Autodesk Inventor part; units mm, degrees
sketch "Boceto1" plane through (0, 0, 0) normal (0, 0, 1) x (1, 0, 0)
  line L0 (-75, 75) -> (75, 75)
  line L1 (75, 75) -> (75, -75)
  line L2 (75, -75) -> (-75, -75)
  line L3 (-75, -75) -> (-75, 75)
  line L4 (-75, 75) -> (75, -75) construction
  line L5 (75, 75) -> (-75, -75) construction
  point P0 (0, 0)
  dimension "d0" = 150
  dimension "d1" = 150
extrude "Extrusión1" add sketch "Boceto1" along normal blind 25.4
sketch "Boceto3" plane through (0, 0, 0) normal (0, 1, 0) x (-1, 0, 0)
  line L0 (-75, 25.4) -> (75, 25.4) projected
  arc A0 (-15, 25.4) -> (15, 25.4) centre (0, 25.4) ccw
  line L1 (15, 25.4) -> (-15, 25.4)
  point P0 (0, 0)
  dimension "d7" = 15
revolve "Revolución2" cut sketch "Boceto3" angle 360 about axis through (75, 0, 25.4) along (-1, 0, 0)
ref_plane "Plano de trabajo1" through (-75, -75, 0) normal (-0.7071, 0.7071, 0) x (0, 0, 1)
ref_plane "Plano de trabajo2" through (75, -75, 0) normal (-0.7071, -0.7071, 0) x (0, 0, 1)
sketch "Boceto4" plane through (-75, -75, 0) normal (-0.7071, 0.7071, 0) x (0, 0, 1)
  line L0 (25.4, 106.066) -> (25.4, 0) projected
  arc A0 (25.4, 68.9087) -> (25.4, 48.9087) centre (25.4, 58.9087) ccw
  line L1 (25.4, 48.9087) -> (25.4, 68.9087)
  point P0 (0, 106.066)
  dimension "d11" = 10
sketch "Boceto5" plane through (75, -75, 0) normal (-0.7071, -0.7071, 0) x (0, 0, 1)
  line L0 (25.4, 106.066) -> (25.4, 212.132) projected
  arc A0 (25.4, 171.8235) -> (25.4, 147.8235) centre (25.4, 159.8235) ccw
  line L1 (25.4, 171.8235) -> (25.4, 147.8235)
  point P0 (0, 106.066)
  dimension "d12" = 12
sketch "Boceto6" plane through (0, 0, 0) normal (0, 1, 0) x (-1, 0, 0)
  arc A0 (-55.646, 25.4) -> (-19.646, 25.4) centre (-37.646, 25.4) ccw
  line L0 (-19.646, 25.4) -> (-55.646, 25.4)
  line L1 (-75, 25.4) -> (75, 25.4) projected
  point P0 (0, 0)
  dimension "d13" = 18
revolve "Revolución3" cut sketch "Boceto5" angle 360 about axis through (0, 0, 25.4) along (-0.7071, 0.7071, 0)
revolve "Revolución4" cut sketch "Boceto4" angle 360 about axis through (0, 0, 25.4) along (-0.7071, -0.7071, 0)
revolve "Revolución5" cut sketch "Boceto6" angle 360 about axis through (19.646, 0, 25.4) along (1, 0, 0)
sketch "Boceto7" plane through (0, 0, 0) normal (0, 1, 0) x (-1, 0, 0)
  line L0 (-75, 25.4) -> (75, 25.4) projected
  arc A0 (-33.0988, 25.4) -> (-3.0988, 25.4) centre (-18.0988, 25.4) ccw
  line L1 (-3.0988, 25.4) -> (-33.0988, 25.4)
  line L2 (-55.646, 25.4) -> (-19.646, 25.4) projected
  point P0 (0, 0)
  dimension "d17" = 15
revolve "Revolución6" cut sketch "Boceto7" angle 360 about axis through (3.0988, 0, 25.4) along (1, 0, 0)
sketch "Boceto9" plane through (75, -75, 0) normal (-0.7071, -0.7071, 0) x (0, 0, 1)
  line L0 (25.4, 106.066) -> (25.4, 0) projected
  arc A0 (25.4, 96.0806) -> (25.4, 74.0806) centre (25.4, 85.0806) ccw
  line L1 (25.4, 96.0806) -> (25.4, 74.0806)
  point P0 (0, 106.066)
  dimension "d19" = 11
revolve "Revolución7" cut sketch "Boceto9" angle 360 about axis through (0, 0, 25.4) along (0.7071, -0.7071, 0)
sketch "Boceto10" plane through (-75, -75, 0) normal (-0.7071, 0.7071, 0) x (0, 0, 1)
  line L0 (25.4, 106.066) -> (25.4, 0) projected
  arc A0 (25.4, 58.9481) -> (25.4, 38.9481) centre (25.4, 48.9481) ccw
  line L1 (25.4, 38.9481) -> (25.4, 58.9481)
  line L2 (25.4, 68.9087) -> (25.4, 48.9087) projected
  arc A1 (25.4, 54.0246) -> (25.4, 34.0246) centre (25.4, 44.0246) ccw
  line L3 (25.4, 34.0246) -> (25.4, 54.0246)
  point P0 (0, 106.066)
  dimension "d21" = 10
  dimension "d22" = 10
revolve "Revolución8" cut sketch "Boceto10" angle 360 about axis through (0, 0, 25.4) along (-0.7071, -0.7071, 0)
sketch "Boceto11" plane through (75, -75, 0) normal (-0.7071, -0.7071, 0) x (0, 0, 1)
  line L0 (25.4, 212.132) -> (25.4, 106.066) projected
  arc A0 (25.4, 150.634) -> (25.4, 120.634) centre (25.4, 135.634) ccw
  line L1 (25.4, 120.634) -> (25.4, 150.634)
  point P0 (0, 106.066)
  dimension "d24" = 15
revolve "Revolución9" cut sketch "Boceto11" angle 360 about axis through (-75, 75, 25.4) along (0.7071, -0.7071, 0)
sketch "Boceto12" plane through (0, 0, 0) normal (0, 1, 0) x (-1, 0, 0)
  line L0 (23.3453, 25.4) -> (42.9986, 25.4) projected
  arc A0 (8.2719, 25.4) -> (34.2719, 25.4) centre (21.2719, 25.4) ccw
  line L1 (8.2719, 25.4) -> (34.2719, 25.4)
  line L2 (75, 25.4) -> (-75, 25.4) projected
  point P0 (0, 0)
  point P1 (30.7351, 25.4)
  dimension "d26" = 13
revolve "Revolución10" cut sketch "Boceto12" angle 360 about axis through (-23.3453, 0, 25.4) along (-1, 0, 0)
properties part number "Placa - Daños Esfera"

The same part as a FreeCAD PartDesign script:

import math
import FreeCAD as App
import Part
import Sketcher

V = App.Vector
Q = App.Units.Quantity


def add_polygon(sketch, points):
    """Adds a closed chain of lines whose ends are joined by coincident constraints."""
    first, n = sketch.GeometryCount, len(points)
    for a, b in zip(points, points[1:] + points[:1]):
        sketch.addGeometry(Part.LineSegment(App.Vector(*a, 0), App.Vector(*b, 0)), False)
    for i in range(n):
        sketch.addConstraint(Sketcher.Constraint("Coincident", first + i, 2, first + (i + 1) % n, 1))

doc = App.newDocument("Part")
params = doc.addObject("Spreadsheet::Sheet", "Params")
for row, (alias, value) in enumerate([
    ("sketch1_width", "150 mm"),
    ("pad1_length", "25.4 mm"),
    ("sketch2_radius", "15 mm"),
    ("groove_angle", "360 deg"),
    ("sketch3_radius", "12 mm"),
    ("groove2_angle", "360 deg"),
    ("sketch4_radius", "10 mm"),
    ("groove3_angle", "360 deg"),
    ("sketch5_radius", "18 mm"),
    ("groove4_angle", "360 deg"),
    ("sketch6_radius", "15 mm"),
    ("groove5_angle", "360 deg"),
    ("sketch7_radius", "11 mm"),
    ("groove6_angle", "360 deg"),
    ("sketch8_radius", "10 mm"),
    ("groove7_angle", "360 deg"),
    ("sketch9_radius", "15 mm"),
    ("groove8_angle", "360 deg"),
    ("sketch10_radius", "13 mm"),
    ("groove9_angle", "360 deg"),
], start=1):
    params.set(f"A{row}", alias)
    params.set(f"B{row}", "=" + value)
    params.setAlias(f"B{row}", alias)

body = doc.addObject("PartDesign::Body", "Body")

# Sketch on XY plane
sketch1 = body.newObject("Sketcher::SketchObject", "Sketch")
sketch1.AttachmentSupport = (doc.getObject("XY_Plane"), [""])
sketch1.MapMode = "FlatFace"
add_polygon(sketch1, [(75, 75), (-75, 75), (-75, -75), (75, -75)])  # lines 0-3
sketch1.addConstraint([
    Sketcher.Constraint("Horizontal", 0),
    Sketcher.Constraint("Vertical", 1),
    Sketcher.Constraint("Horizontal", 2),
    Sketcher.Constraint("Vertical", 3),
    Sketcher.Constraint("Symmetric", 0, 2, 2, 2, -1, 1),
    Sketcher.Constraint("Equal", 2, 1),
    Sketcher.Constraint("DistanceX", 0, 2, 0, 1, Q("150 mm")),
])
sketch1.setExpression("Constraints[10]", "Params.sketch1_width")
pad1 = body.newObject("PartDesign::Pad", "Pad")
pad1.Profile = sketch1
pad1.setExpression("Length", "Params.pad1_length")

# Sketch on XZ plane
sketch2 = body.newObject("Sketcher::SketchObject", "Sketch001")
sketch2.AttachmentSupport = (doc.getObject("XZ_Plane"), [""])
sketch2.MapMode = "FlatFace"
sketch2.addGeometry([
    Part.LineSegment(V(-15, 25, 0), V(15, 25, 0)),
    Part.ArcOfCircle(Part.Circle(V(0, 25, 0), V(0, 0, 1), 15), math.radians(180), math.radians(360)),
], False)
sketch2.addGeometry(Part.LineSegment(V(15, 25, 0), V(-15, 25, 0)), True)  # axis
sketch2.addConstraint([
    Sketcher.Constraint("Coincident", 0, 1, 1, 1),
    Sketcher.Constraint("Coincident", 1, 2, 0, 2),
    Sketcher.Constraint("Horizontal", 0),
    Sketcher.Constraint("Horizontal", 2),
    Sketcher.Constraint("Coincident", 2, 1, 1, 2),
    Sketcher.Constraint("PointOnObject", 1, 3, -2),
    Sketcher.Constraint("Horizontal", 1, 3, 0, 1),
    Sketcher.Constraint("Equal", 0, 2),
    Sketcher.Constraint("Radius", 1, Q("15 mm")),
    Sketcher.Constraint("DistanceY", -1, 1, 1, 3, Q("25.4 mm")),
])
sketch2.setExpression("Constraints[8]", "Params.sketch2_radius")
groove = body.newObject("PartDesign::Groove", "Groove")
groove.Profile = sketch2
groove.ReferenceAxis = (sketch2, ["Axis0"])
groove.setExpression("Angle", "Params.groove_angle")

# Sketch on an angled plane
sketch3 = body.newObject("Sketcher::SketchObject", "Sketch002")
sketch3.Placement = App.Placement(V(75, -75, 0), App.Rotation(V(0, 0, 1), V(-0.707106781, 0.707106781, 0), V(-0.707106781, -0.707106781, 0), "ZXY"))
sketch3.addGeometry([
    Part.ArcOfCircle(Part.Circle(V(25, 160, 0), V(0, 0, 1), 12), math.radians(90), math.radians(270)),
    Part.LineSegment(V(25, 148, 0), V(25, 172, 0)),
], False)
sketch3.addGeometry(Part.LineSegment(V(25, 148, 0), V(25, 172, 0)), True)  # axis
sketch3.addConstraint([
    Sketcher.Constraint("Coincident", 0, 1, 1, 2),
    Sketcher.Constraint("Coincident", 1, 1, 0, 2),
    Sketcher.Constraint("Vertical", 1),
    Sketcher.Constraint("Vertical", 2),
    Sketcher.Constraint("Coincident", 2, 1, 1, 1),
    Sketcher.Constraint("Equal", 1, 2),
    Sketcher.Constraint("Radius", 0, Q("12 mm")),
    Sketcher.Constraint("DistanceX", -1, 1, 0, 3, Q("25.4 mm")),
    Sketcher.Constraint("DistanceX", -1, 1, 0, 1, Q("25.4 mm")),
    Sketcher.Constraint("DistanceY", -1, 1, 0, 3, Q("159.8235 mm")),
])
sketch3.setExpression("Constraints[6]", "Params.sketch3_radius")
groove2 = body.newObject("PartDesign::Groove", "Groove001")
groove2.Profile = sketch3
groove2.ReferenceAxis = (sketch3, ["Axis0"])
groove2.setExpression("Angle", "Params.groove2_angle")

# Sketch on an angled plane
sketch4 = body.newObject("Sketcher::SketchObject", "Sketch003")
sketch4.Placement = App.Placement(V(-75, -75, 0), App.Rotation(V(0, 0, 1), V(0.707106781, 0.707106781, 0), V(-0.707106781, 0.707106781, 0), "ZXY"))
sketch4.addGeometry([
    Part.LineSegment(V(25, 49, 0), V(25, 69, 0)),
    Part.ArcOfCircle(Part.Circle(V(25, 59, 0), V(0, 0, 1), 10), math.radians(90), math.radians(270)),
], False)
sketch4.addGeometry(Part.LineSegment(V(25, 69, 0), V(25, 49, 0)), True)  # axis
sketch4.addConstraint([
    Sketcher.Constraint("Coincident", 0, 1, 1, 2),
    Sketcher.Constraint("Coincident", 1, 1, 0, 2),
    Sketcher.Constraint("Vertical", 0),
    Sketcher.Constraint("Vertical", 2),
    Sketcher.Constraint("Coincident", 2, 1, 1, 1),
    Sketcher.Constraint("Vertical", 1, 3, 0, 1),
    Sketcher.Constraint("Equal", 0, 2),
    Sketcher.Constraint("Radius", 1, Q("10 mm")),
    Sketcher.Constraint("DistanceX", -1, 1, 1, 3, Q("25.4 mm")),
    Sketcher.Constraint("DistanceY", -1, 1, 1, 3, Q("58.9087 mm")),
])
sketch4.setExpression("Constraints[7]", "Params.sketch4_radius")
groove3 = body.newObject("PartDesign::Groove", "Groove002")
groove3.Profile = sketch4
groove3.ReferenceAxis = (sketch4, ["Axis0"])
groove3.setExpression("Angle", "Params.groove3_angle")

# Sketch on XZ plane
sketch5 = body.newObject("Sketcher::SketchObject", "Sketch004")
sketch5.AttachmentSupport = (doc.getObject("XZ_Plane"), [""])
sketch5.MapMode = "FlatFace"
sketch5.addGeometry([
    Part.LineSegment(V(20, 25, 0), V(56, 25, 0)),
    Part.ArcOfCircle(Part.Circle(V(38, 25, 0), V(0, 0, 1), 18), math.radians(180), math.radians(360)),
], False)
sketch5.addGeometry(Part.LineSegment(V(20, 25, 0), V(56, 25, 0)), True)  # axis
sketch5.addConstraint([
    Sketcher.Constraint("Coincident", 0, 1, 1, 1),
    Sketcher.Constraint("Coincident", 1, 2, 0, 2),
    Sketcher.Constraint("Horizontal", 0),
    Sketcher.Constraint("Horizontal", 2),
    Sketcher.Constraint("Coincident", 2, 1, 0, 1),
    Sketcher.Constraint("Horizontal", 1, 3, 0, 1),
    Sketcher.Constraint("Equal", 0, 2),
    Sketcher.Constraint("Radius", 1, Q("18 mm")),
    Sketcher.Constraint("DistanceY", -1, 1, 1, 3, Q("25.4 mm")),
    Sketcher.Constraint("DistanceX", -1, 1, 1, 3, Q("37.646 mm")),
])
sketch5.setExpression("Constraints[7]", "Params.sketch5_radius")
groove4 = body.newObject("PartDesign::Groove", "Groove003")
groove4.Profile = sketch5
groove4.ReferenceAxis = (sketch5, ["Axis0"])
groove4.setExpression("Angle", "Params.groove4_angle")

# Sketch on XZ plane
sketch6 = body.newObject("Sketcher::SketchObject", "Sketch005")
sketch6.AttachmentSupport = (doc.getObject("XZ_Plane"), [""])
sketch6.MapMode = "FlatFace"
sketch6.addGeometry([
    Part.LineSegment(V(3, 25, 0), V(33, 25, 0)),
    Part.ArcOfCircle(Part.Circle(V(18, 25, 0), V(0, 0, 1), 15), math.radians(180), math.radians(360)),
], False)
sketch6.addGeometry(Part.LineSegment(V(3, 25, 0), V(33, 25, 0)), True)  # axis
sketch6.addConstraint([
    Sketcher.Constraint("Coincident", 0, 1, 1, 1),
    Sketcher.Constraint("Coincident", 1, 2, 0, 2),
    Sketcher.Constraint("Horizontal", 0),
    Sketcher.Constraint("Horizontal", 2),
    Sketcher.Constraint("Coincident", 2, 1, 0, 1),
    Sketcher.Constraint("Horizontal", 1, 3, 0, 1),
    Sketcher.Constraint("Equal", 0, 2),
    Sketcher.Constraint("Radius", 1, Q("15 mm")),
    Sketcher.Constraint("DistanceY", -1, 1, 1, 3, Q("25.4 mm")),
    Sketcher.Constraint("DistanceX", -1, 1, 1, 3, Q("18.0988 mm")),
])
sketch6.setExpression("Constraints[7]", "Params.sketch6_radius")
groove5 = body.newObject("PartDesign::Groove", "Groove004")
groove5.Profile = sketch6
groove5.ReferenceAxis = (sketch6, ["Axis0"])
groove5.setExpression("Angle", "Params.groove5_angle")

# Sketch on an angled plane
sketch7 = body.newObject("Sketcher::SketchObject", "Sketch006")
sketch7.Placement = App.Placement(V(75, -75, 0), App.Rotation(V(0, 0, 1), V(-0.707106781, 0.707106781, 0), V(-0.707106781, -0.707106781, 0), "ZXY"))
sketch7.addGeometry([
    Part.LineSegment(V(25, 74, 0), V(25, 96, 0)),
    Part.ArcOfCircle(Part.Circle(V(25, 85, 0), V(0, 0, 1), 11), math.radians(90), math.radians(270)),
], False)
sketch7.addGeometry(Part.LineSegment(V(25, 96, 0), V(25, 74, 0)), True)  # axis
sketch7.addConstraint([
    Sketcher.Constraint("Coincident", 0, 1, 1, 2),
    Sketcher.Constraint("Coincident", 1, 1, 0, 2),
    Sketcher.Constraint("Vertical", 0),
    Sketcher.Constraint("Vertical", 2),
    Sketcher.Constraint("Coincident", 2, 1, 1, 1),
    Sketcher.Constraint("Vertical", 1, 3, 0, 1),
    Sketcher.Constraint("Equal", 0, 2),
    Sketcher.Constraint("Radius", 1, Q("11 mm")),
    Sketcher.Constraint("DistanceX", -1, 1, 1, 3, Q("25.4 mm")),
    Sketcher.Constraint("DistanceY", -1, 1, 1, 3, Q("85.0806 mm")),
])
sketch7.setExpression("Constraints[7]", "Params.sketch7_radius")
groove6 = body.newObject("PartDesign::Groove", "Groove005")
groove6.Profile = sketch7
groove6.ReferenceAxis = (sketch7, ["Axis0"])
groove6.setExpression("Angle", "Params.groove6_angle")

# Sketch on an angled plane
sketch8 = body.newObject("Sketcher::SketchObject", "Sketch007")
sketch8.Placement = App.Placement(V(-75, -75, 0), App.Rotation(V(0, 0, 1), V(0.707106781, 0.707106781, 0), V(-0.707106781, 0.707106781, 0), "ZXY"))
sketch8.addGeometry([
    Part.ArcOfCircle(Part.Circle(V(25, 49, 0), V(0, 0, 1), 10), math.radians(90), math.radians(194)),
    Part.ArcOfCircle(Part.Circle(V(25, 44, 0), V(0, 0, 1), 10), math.radians(166), math.radians(270)),
    Part.LineSegment(V(25, 34, 0), V(25, 59, 0)),
], False)
sketch8.addGeometry(Part.LineSegment(V(25, 59, 0), V(25, 34, 0)), True)  # axis
sketch8.addConstraint([
    Sketcher.Constraint("Coincident", 0, 2, 1, 1),
    Sketcher.Constraint("Coincident", 1, 2, 2, 1),
    Sketcher.Constraint("Coincident", 2, 2, 0, 1),
    Sketcher.Constraint("Vertical", 2),
    Sketcher.Constraint("Vertical", 3),
    Sketcher.Constraint("Coincident", 3, 1, 2, 2),
    Sketcher.Constraint("Equal", 0, 1),
    Sketcher.Constraint("Vertical", 0, 3, 1, 3),
    Sketcher.Constraint("Vertical", 0, 3, 1, 2),
    Sketcher.Constraint("Equal", 2, 3),
    Sketcher.Constraint("Radius", 0, Q("10 mm")),
    Sketcher.Constraint("DistanceX", -1, 1, 0, 3, Q("25.4 mm")),
    Sketcher.Constraint("DistanceY", 2, 1, 2, 2, Q("24.9235 mm")),
    Sketcher.Constraint("DistanceY", -1, 1, 0, 3, Q("48.948 mm")),
])
sketch8.setExpression("Constraints[10]", "Params.sketch8_radius")
groove7 = body.newObject("PartDesign::Groove", "Groove006")
groove7.Profile = sketch8
groove7.ReferenceAxis = (sketch8, ["Axis0"])
groove7.setExpression("Angle", "Params.groove7_angle")

# Sketch on an angled plane
sketch9 = body.newObject("Sketcher::SketchObject", "Sketch008")
sketch9.Placement = App.Placement(V(75, -75, 0), App.Rotation(V(0, 0, 1), V(-0.707106781, 0.707106781, 0), V(-0.707106781, -0.707106781, 0), "ZXY"))
sketch9.addGeometry([
    Part.LineSegment(V(25, 121, 0), V(25, 151, 0)),
    Part.ArcOfCircle(Part.Circle(V(25, 136, 0), V(0, 0, 1), 15), math.radians(90), math.radians(270)),
], False)
sketch9.addGeometry(Part.LineSegment(V(25, 151, 0), V(25, 121, 0)), True)  # axis
sketch9.addConstraint([
    Sketcher.Constraint("Coincident", 0, 1, 1, 2),
    Sketcher.Constraint("Coincident", 1, 1, 0, 2),
    Sketcher.Constraint("Vertical", 0),
    Sketcher.Constraint("Vertical", 2),
    Sketcher.Constraint("Coincident", 2, 1, 1, 1),
    Sketcher.Constraint("Vertical", 1, 3, 0, 1),
    Sketcher.Constraint("Equal", 0, 2),
    Sketcher.Constraint("Radius", 1, Q("15 mm")),
    Sketcher.Constraint("DistanceX", -1, 1, 1, 3, Q("25.4 mm")),
    Sketcher.Constraint("DistanceY", -1, 1, 1, 3, Q("135.634 mm")),
])
sketch9.setExpression("Constraints[7]", "Params.sketch9_radius")
groove8 = body.newObject("PartDesign::Groove", "Groove007")
groove8.Profile = sketch9
groove8.ReferenceAxis = (sketch9, ["Axis0"])
groove8.setExpression("Angle", "Params.groove8_angle")

# Sketch on XZ plane
sketch10 = body.newObject("Sketcher::SketchObject", "Sketch009")
sketch10.AttachmentSupport = (doc.getObject("XZ_Plane"), [""])
sketch10.MapMode = "FlatFace"
sketch10.addGeometry([
    Part.LineSegment(V(-34, 25, 0), V(-8, 25, 0)),
    Part.ArcOfCircle(Part.Circle(V(-21, 25, 0), V(0, 0, 1), 13), math.radians(180), math.radians(360)),
], False)
sketch10.addGeometry(Part.LineSegment(V(-8, 25, 0), V(-34, 25, 0)), True)  # axis
sketch10.addConstraint([
    Sketcher.Constraint("Coincident", 0, 1, 1, 1),
    Sketcher.Constraint("Coincident", 1, 2, 0, 2),
    Sketcher.Constraint("Horizontal", 0),
    Sketcher.Constraint("Horizontal", 2),
    Sketcher.Constraint("Coincident", 2, 1, 1, 2),
    Sketcher.Constraint("Horizontal", 1, 3, 0, 1),
    Sketcher.Constraint("Equal", 0, 2),
    Sketcher.Constraint("Radius", 1, Q("13 mm")),
    Sketcher.Constraint("DistanceY", -1, 1, 1, 3, Q("25.4 mm")),
    Sketcher.Constraint("DistanceX", 1, 3, -1, 1, Q("21.272 mm")),
])
sketch10.setExpression("Constraints[7]", "Params.sketch10_radius")
groove9 = body.newObject("PartDesign::Groove", "Groove008")
groove9.Profile = sketch10
groove9.ReferenceAxis = (sketch10, ["Axis0"])
groove9.setExpression("Angle", "Params.groove9_angle")

doc.recompute()
